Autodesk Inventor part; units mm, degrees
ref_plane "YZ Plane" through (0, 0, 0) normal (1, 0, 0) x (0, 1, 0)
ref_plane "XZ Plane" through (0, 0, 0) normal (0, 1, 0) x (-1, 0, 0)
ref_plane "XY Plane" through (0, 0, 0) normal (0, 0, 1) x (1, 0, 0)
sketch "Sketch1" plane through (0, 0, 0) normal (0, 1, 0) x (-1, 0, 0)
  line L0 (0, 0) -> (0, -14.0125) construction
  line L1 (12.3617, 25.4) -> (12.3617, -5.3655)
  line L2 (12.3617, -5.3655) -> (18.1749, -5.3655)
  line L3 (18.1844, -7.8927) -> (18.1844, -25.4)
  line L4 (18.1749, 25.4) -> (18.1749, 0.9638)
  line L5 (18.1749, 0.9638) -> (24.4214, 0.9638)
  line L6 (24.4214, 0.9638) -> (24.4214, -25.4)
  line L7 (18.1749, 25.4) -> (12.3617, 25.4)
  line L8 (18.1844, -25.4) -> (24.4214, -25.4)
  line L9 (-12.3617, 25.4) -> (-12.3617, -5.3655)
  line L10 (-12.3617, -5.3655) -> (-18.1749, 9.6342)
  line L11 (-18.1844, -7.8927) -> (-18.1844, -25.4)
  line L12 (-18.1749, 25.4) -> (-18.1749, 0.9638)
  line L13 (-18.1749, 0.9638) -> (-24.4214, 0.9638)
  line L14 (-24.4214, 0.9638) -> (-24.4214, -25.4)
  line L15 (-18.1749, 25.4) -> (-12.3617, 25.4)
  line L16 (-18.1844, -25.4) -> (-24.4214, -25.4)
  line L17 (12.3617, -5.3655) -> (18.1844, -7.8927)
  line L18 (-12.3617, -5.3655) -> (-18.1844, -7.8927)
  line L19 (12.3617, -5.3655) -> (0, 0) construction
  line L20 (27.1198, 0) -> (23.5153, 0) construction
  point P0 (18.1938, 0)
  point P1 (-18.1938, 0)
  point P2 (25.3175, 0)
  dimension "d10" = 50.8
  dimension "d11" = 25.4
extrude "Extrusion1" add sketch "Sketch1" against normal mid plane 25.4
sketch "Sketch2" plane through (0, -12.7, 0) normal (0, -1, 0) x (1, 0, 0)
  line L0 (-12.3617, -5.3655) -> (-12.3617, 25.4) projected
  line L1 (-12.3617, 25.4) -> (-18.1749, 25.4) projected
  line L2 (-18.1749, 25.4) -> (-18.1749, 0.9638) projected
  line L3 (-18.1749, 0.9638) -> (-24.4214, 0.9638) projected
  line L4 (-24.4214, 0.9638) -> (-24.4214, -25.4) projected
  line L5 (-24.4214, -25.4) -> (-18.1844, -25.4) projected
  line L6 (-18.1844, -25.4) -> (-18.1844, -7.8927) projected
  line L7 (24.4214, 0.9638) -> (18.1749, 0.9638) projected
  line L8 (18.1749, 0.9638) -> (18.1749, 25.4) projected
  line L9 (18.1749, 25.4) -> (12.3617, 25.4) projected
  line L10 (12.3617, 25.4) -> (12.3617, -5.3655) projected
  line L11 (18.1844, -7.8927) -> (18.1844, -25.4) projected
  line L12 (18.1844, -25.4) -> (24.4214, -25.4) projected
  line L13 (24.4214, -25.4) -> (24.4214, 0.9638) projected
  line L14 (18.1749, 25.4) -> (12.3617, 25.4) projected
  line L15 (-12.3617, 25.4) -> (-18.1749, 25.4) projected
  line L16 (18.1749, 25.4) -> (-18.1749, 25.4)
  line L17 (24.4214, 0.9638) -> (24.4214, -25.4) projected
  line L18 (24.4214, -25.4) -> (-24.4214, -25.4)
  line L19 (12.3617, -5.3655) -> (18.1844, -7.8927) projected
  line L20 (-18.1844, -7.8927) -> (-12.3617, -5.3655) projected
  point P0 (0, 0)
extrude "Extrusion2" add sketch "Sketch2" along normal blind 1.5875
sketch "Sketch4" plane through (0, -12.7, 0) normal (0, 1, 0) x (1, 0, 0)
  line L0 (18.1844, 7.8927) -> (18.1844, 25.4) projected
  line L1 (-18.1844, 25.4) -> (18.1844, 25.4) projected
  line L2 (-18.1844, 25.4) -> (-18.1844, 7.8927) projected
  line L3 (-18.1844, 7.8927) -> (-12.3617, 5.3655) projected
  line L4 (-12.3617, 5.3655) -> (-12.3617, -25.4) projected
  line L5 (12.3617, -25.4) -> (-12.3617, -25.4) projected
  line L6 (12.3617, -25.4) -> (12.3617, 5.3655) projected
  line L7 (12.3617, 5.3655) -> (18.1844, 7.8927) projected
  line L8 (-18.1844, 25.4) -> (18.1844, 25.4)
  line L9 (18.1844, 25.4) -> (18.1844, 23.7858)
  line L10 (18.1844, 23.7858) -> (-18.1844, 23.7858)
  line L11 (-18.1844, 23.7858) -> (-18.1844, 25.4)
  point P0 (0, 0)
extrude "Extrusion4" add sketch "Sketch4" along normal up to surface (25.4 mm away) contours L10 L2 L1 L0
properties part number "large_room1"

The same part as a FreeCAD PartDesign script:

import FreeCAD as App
import Part
import Sketcher
from FreeCAD import Vector
Q = App.Units.Quantity


def add_polygon(sketch, points):
    """Adds a closed chain of lines whose ends are joined by coincident constraints."""
    first, n = sketch.GeometryCount, len(points)
    for a, b in zip(points, points[1:] + points[:1]):
        sketch.addGeometry(Part.LineSegment(App.Vector(*a, 0), App.Vector(*b, 0)), False)
    for i in range(n):
        sketch.addConstraint(Sketcher.Constraint("Coincident", first + i, 2, first + (i + 1) % n, 1))

doc = App.newDocument("Part")
params = doc.addObject("Spreadsheet::Sheet", "Params")
for row, (alias, value) in enumerate([
    ("pad1_length", "1 in"),
    ("pad2_length", "0.0625 in"),
    ("pad3_length", "1 in"),
], start=1):
    params.set(f"A{row}", alias)
    params.set(f"B{row}", "=" + value)
    params.setAlias(f"B{row}", alias)

body = doc.addObject("PartDesign::Body", "Body")
body.AllowCompound = True

# Sketch on XZ plane
sketch1 = body.newObject("Sketcher::SketchObject", "Sketch")
sketch1.AttachmentSupport = (doc.getObject("XZ_Plane"), [""])
sketch1.MapMode = "FlatFace"
add_polygon(sketch1, [(-18.1749, 25.4), (-12.3617, 25.4), (-12.3617, -5.3655), (-18.1844, -7.8927), (-18.1844, -25.4), (-24.4214, -25.4), (-24.4214, 0.9638), (-18.1749, 0.9638)])  # lines 0-7
add_polygon(sketch1, [(12.3617, -5.3655), (12.3617, 25.4), (18.1749, 25.4), (18.1749, 0.9638), (24.4214, 0.9638), (24.4214, -25.4), (18.1844, -25.4), (18.1844, -7.8927)])  # lines 8-15
sketch1.addConstraint([
    Sketcher.Constraint("Horizontal", 0),
    Sketcher.Constraint("Vertical", 1),
    Sketcher.Constraint("Vertical", 3),
    Sketcher.Constraint("Horizontal", 4),
    Sketcher.Constraint("Vertical", 5),
    Sketcher.Constraint("Horizontal", 6),
    Sketcher.Constraint("Vertical", 7),
    Sketcher.Constraint("Vertical", 8),
    Sketcher.Constraint("Horizontal", 9),
    Sketcher.Constraint("Vertical", 10),
    Sketcher.Constraint("Horizontal", 11),
    Sketcher.Constraint("Vertical", 12),
    Sketcher.Constraint("Horizontal", 13),
    Sketcher.Constraint("Vertical", 14),
    Sketcher.Constraint("Symmetric", 0, 2, 8, 2, -2),
    Sketcher.Constraint("Symmetric", 6, 2, 10, 2, -2),
    Sketcher.Constraint("Symmetric", 4, 2, 12, 2, -2),
    Sketcher.Constraint("Symmetric", 2, 2, 14, 2, -2),
    Sketcher.Constraint("Horizontal", 1, 2, 15, 2),
    Sketcher.Constraint("DistanceY", -1, 1, 0, 2, Q("1 in")),
    Sketcher.Constraint("DistanceY", 3, 2, -1, 1, Q("1 in")),
    Sketcher.Constraint("Distance", 2, Q("0.2499 in")),
    Sketcher.Constraint("DistanceX", 0, 1, 0, 2, Q("5.8132 mm")),
    Sketcher.Constraint("DistanceX", 4, 2, 4, 1, Q("6.237 mm")),
    Sketcher.Constraint("DistanceX", 6, 1, 6, 2, Q("6.2465 mm")),
    Sketcher.Constraint("DistanceY", 1, 2, 1, 1, Q("30.7655 mm")),
    Sketcher.Constraint("DistanceY", 5, 1, 5, 2, Q("26.3638 mm")),
    Sketcher.Constraint("DistanceX", 7, 2, 9, 2, Q("1.4311 in")),
])
pad1 = body.newObject("PartDesign::Pad", "Pad")
pad1.Profile = sketch1
pad1.setExpression("Length", "Params.pad1_length")
pad1.Midplane = True

# Sketch on XZ plane
sketch2 = body.newObject("Sketcher::SketchObject", "Sketch001")
sketch2.AttachmentSupport = (doc.getObject("XZ_Plane"), [""])
sketch2.MapMode = "FlatFace"
sketch2.AttachmentOffset = App.Placement(Vector(0, 0, 0.5 * 25.4), App.Rotation())
add_polygon(sketch2, [(-24.4214, -25.4), (24.4214, -25.4), (24.4214, 0.9638), (18.1749, 0.9638), (18.1749, 25.4), (-18.1749, 25.4), (-18.1749, 0.9638), (-24.4214, 0.9638)])  # lines 0-7
sketch2.addConstraint([
    Sketcher.Constraint("Horizontal", 0),
    Sketcher.Constraint("Vertical", 1),
    Sketcher.Constraint("Horizontal", 2),
    Sketcher.Constraint("Vertical", 3),
    Sketcher.Constraint("Horizontal", 4),
    Sketcher.Constraint("Vertical", 5),
    Sketcher.Constraint("Horizontal", 6),
    Sketcher.Constraint("Vertical", 7),
    Sketcher.Constraint("Symmetric", 2, 2, 5, 2, -2),
    Sketcher.Constraint("Equal", 2, 6),
    Sketcher.Constraint("DistanceY", 0, 2, -1, 1, Q("1 in")),
    Sketcher.Constraint("DistanceY", -1, 1, 3, 2, Q("1 in")),
    Sketcher.Constraint("DistanceX", 4, 2, 4, 1, Q("1.4311 in")),
    Sketcher.Constraint("DistanceX", 0, 1, 0, 2, Q("48.8428 mm")),
    Sketcher.Constraint("DistanceY", 1, 1, 1, 2, Q("26.3638 mm")),
])
pad2 = body.newObject("PartDesign::Pad", "Pad001")
pad2.Profile = sketch2
pad2.setExpression("Length", "Params.pad2_length")

# Sketch on XZ plane
sketch3 = body.newObject("Sketcher::SketchObject", "Sketch002")
sketch3.AttachmentSupport = (doc.getObject("XZ_Plane"), [""])
sketch3.MapMode = "FlatFace"
sketch3.AttachmentOffset = App.Placement(Vector(0, 0, 0.5 * 25.4), App.Rotation())
add_polygon(sketch3, [(-18.1844, -23.7858), (18.1844, -23.7858), (18.1844, -25.4), (-18.1844, -25.4)])  # lines 0-3
sketch3.addConstraint([
    Sketcher.Constraint("Horizontal", 0),
    Sketcher.Constraint("Vertical", 1),
    Sketcher.Constraint("Horizontal", 2),
    Sketcher.Constraint("Vertical", 3),
    Sketcher.Constraint("DistanceY", 1, 2, -1, 1, Q("1 in")),
    Sketcher.Constraint("DistanceX", 0, 1, 0, 2, Q("36.3688 mm")),
    Sketcher.Constraint("DistanceY", 1, 2, 1, 1, Q("1.6142 mm")),
    Sketcher.Constraint("DistanceX", -1, 1, 0, 2, Q("18.1844 mm")),
])
pad3 = body.newObject("PartDesign::Pad", "Pad002")
pad3.Profile = sketch3
pad3.setExpression("Length", "Params.pad3_length")
pad3.Reversed = True

doc.recompute()
